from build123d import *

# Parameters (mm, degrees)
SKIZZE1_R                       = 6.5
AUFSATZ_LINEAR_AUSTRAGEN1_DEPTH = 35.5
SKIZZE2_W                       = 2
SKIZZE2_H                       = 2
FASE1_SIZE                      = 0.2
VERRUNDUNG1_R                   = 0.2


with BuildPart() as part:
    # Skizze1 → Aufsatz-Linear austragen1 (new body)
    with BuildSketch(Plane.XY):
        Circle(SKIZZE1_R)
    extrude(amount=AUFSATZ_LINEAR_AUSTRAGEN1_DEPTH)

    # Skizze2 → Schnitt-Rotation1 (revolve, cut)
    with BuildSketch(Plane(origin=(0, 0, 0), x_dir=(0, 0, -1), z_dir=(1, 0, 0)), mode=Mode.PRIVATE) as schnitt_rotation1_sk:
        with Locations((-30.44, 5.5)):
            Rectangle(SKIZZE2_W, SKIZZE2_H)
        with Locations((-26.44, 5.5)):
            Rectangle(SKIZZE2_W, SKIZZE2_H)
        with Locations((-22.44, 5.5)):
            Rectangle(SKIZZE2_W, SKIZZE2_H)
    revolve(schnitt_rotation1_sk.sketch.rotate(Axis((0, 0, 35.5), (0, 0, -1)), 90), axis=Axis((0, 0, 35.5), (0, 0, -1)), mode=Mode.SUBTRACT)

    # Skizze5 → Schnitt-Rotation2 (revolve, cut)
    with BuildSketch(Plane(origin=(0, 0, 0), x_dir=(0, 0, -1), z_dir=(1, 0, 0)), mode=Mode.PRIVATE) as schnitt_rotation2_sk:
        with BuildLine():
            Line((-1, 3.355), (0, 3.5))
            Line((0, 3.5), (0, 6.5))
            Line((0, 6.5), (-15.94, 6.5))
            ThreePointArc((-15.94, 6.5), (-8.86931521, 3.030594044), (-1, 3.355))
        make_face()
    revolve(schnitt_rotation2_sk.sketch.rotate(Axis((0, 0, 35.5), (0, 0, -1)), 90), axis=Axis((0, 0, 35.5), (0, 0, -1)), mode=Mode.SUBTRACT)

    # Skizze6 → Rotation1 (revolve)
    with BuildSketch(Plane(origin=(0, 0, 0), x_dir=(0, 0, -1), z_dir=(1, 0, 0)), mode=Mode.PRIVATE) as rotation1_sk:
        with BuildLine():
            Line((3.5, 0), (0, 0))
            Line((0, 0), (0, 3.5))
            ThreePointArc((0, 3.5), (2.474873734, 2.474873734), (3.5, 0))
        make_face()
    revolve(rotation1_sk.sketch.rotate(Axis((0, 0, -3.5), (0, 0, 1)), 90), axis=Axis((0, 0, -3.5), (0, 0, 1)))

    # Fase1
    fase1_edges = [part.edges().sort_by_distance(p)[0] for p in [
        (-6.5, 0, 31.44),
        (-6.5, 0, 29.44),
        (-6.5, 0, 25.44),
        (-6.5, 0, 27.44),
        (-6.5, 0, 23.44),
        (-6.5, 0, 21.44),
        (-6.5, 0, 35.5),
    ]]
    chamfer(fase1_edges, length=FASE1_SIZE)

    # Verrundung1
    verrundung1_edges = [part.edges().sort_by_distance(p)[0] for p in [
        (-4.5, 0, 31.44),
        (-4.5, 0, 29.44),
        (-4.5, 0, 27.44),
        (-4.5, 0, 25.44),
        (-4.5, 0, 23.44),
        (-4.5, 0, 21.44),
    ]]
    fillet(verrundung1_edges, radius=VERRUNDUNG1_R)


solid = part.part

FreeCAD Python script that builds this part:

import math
import FreeCAD as App
import Part
import Sketcher

V = App.Vector


def edges_at(feature, points):
    """Names of the edges that pass closest to the given points."""
    edges = feature.Shape.Edges
    near = lambda p: min(range(len(edges)), key=lambda i: edges[i].distToShape(Part.Vertex(*p))[0])
    return sorted({f"Edge{near(p) + 1}" for p in points})


def add_polygon(sketch, points):
    """Adds a closed chain of lines whose ends are joined by coincident constraints."""
    first, n = sketch.GeometryCount, len(points)
    for a, b in zip(points, points[1:] + points[:1]):
        sketch.addGeometry(Part.LineSegment(App.Vector(*a, 0), App.Vector(*b, 0)), False)
    for i in range(n):
        sketch.addConstraint(Sketcher.Constraint("Coincident", first + i, 2, first + (i + 1) % n, 1))

doc = App.newDocument("Part")
body = doc.addObject("PartDesign::Body", "Body")

# Sketch on XY plane
sketch1 = body.newObject("Sketcher::SketchObject", "Sketch")
sketch1.AttachmentSupport = (doc.getObject("XY_Plane"), [""])
sketch1.MapMode = "FlatFace"
sketch1.addGeometry(Part.Circle(V(0, 0, 0), V(0, 0, 1), 6), False)
sketch1.addConstraint([
    Sketcher.Constraint("Coincident", 0, 3, -1, 1),
    Sketcher.Constraint("Diameter", 0, 13.0),
])
pad1 = body.newObject("PartDesign::Pad", "Pad")
pad1.Profile = sketch1
pad1.Length = 35.5

# Sketch on YZ plane
sketch2 = body.newObject("Sketcher::SketchObject", "Sketch001")
sketch2.AttachmentSupport = (doc.getObject("YZ_Plane"), [""])
sketch2.MapMode = "FlatFace"
add_polygon(sketch2, [(6.5, 31.4), (4.5, 31.4), (4.5, 29.4), (6.5, 29.4)])  # lines 0-3
add_polygon(sketch2, [(6.5, 27.4), (4.5, 27.4), (4.5, 25.4), (6.5, 25.4)])  # lines 4-7
add_polygon(sketch2, [(6.5, 23.4), (4.5, 23.4), (4.5, 21.4), (6.5, 21.4)])  # lines 8-11
sketch2.addConstraint([
    Sketcher.Constraint("Horizontal", 0),
    Sketcher.Constraint("Vertical", 1),
    Sketcher.Constraint("Horizontal", 2),
    Sketcher.Constraint("Vertical", 3),
    Sketcher.Constraint("Horizontal", 4),
    Sketcher.Constraint("Vertical", 5),
    Sketcher.Constraint("Horizontal", 6),
    Sketcher.Constraint("Vertical", 7),
    Sketcher.Constraint("Horizontal", 8),
    Sketcher.Constraint("Vertical", 9),
    Sketcher.Constraint("Horizontal", 10),
    Sketcher.Constraint("Vertical", 11),
    Sketcher.Constraint("Vertical", 1, 2, 4, 2),
    Sketcher.Constraint("Vertical", 3, 2, 6, 2),
    Sketcher.Constraint("Vertical", 5, 2, 8, 2),
    Sketcher.Constraint("Vertical", 7, 2, 10, 2),
    Sketcher.Constraint("Equal", 10, 1),
    Sketcher.Constraint("Equal", 3, 5),
    Sketcher.Constraint("Equal", 7, 9),
    Sketcher.Constraint("DistanceX", 0, 2, 0, 1, 2.0),
    Sketcher.Constraint("DistanceY", 4, 2, 1, 2, 2.0),
    Sketcher.Constraint("DistanceY", 8, 2, 5, 2, 2.0),
    Sketcher.Constraint("DistanceX", -1, 1, 0, 2, 4.5),
    Sketcher.Constraint("DistanceY", -1, 1, 0, 2, 31.44),
])
groove = body.newObject("PartDesign::Groove", "Groove")
groove.Profile = sketch2
groove.ReferenceAxis = (sketch2, ["V_Axis"])
groove.Angle = 360

# Sketch on YZ plane
sketch3 = body.newObject("Sketcher::SketchObject", "Sketch002")
sketch3.AttachmentSupport = (doc.getObject("YZ_Plane"), [""])
sketch3.MapMode = "FlatFace"
sketch3.addGeometry([
    Part.LineSegment(V(3.4, 1, 0), V(3.5, 0, 0)),
    Part.LineSegment(V(3.5, 0, 0), V(6.5, 0, 0)),
    Part.LineSegment(V(6.5, 0, 0), V(6.5, 15.9, 0)),
    Part.ArcOfCircle(Part.Circle(V(18.7, 5.6, 0), V(0, 0, 1), 16), math.radians(140), math.radians(197)),
], False)
sketch3.addConstraint([
    Sketcher.Constraint("Coincident", 0, 2, 1, 1),
    Sketcher.Constraint("Coincident", 1, 2, 2, 1),
    Sketcher.Constraint("Coincident", 2, 2, 3, 1),
    Sketcher.Constraint("Coincident", 3, 2, 0, 1),
    Sketcher.Constraint("Horizontal", 1),
    Sketcher.Constraint("Vertical", 2),
    Sketcher.Constraint("PointOnObject", 0, 2, -1),
    Sketcher.Constraint("Radius", 3, 16.0),
    Sketcher.Constraint("DistanceX", 1, 1, 1, 2, 3.0),
    Sketcher.Constraint("DistanceY", -1, 1, 3, 2, 1.0),
    Sketcher.Constraint("DistanceY", 2, 1, 2, 2, 15.94),
    Sketcher.Constraint("DistanceX", -1, 1, 0, 2, 3.5),
    Sketcher.Constraint("DistanceX", -1, 1, 3, 2, 3.355),
])
groove2 = body.newObject("PartDesign::Groove", "Groove001")
groove2.Profile = sketch3
groove2.ReferenceAxis = (sketch3, ["V_Axis"])
groove2.Angle = 360

# Sketch on YZ plane
sketch4 = body.newObject("Sketcher::SketchObject", "Sketch003")
sketch4.AttachmentSupport = (doc.getObject("YZ_Plane"), [""])
sketch4.MapMode = "FlatFace"
sketch4.addGeometry([
    Part.LineSegment(V(0, 0, 0), V(0, -3.5, 0)),
    Part.ArcOfCircle(Part.Circle(V(0, 0, 0), V(0, 0, 1), 3.5), math.radians(-90), math.radians(0)),
    Part.LineSegment(V(3.5, 0, 0), V(0, 0, 0)),
], False)
sketch4.addConstraint([
    Sketcher.Constraint("Coincident", 0, 2, 1, 1),
    Sketcher.Constraint("Coincident", 1, 2, 2, 1),
    Sketcher.Constraint("Coincident", 2, 2, 0, 1),
    Sketcher.Constraint("Vertical", 0),
    Sketcher.Constraint("Horizontal", 2),
    Sketcher.Constraint("Coincident", 1, 3, -1, 1),
    Sketcher.Constraint("Coincident", 2, 2, -1, 1),
    Sketcher.Constraint("Radius", 1, 3.5),
])
revolution = body.newObject("PartDesign::Revolution", "Revolution")
revolution.Profile = sketch4
revolution.ReferenceAxis = (sketch4, ["V_Axis"])
revolution.Angle = 360
doc.recompute()

chamfer = body.newObject("PartDesign::Chamfer", "Chamfer")
chamfer.Base = (revolution, edges_at(revolution, [
    (-6.5, 0, 31.44),
    (-6.5, 0, 29.44),
    (-6.5, 0, 25.44),
    (-6.5, 0, 27.44),
    (-6.5, 0, 23.44),
    (-6.5, 0, 21.44),
    (-6.5, 0, 35.5),
]))
chamfer.Size = 0.2
doc.recompute()

fillet = body.newObject("PartDesign::Fillet", "Fillet")
fillet.Base = (chamfer, edges_at(chamfer, [
    (-4.5, 0, 31.44),
    (-4.5, 0, 29.44),
    (-4.5, 0, 27.44),
    (-4.5, 0, 25.44),
    (-4.5, 0, 23.44),
    (-4.5, 0, 21.44),
]))
fillet.Radius = 0.2

doc.recompute()
